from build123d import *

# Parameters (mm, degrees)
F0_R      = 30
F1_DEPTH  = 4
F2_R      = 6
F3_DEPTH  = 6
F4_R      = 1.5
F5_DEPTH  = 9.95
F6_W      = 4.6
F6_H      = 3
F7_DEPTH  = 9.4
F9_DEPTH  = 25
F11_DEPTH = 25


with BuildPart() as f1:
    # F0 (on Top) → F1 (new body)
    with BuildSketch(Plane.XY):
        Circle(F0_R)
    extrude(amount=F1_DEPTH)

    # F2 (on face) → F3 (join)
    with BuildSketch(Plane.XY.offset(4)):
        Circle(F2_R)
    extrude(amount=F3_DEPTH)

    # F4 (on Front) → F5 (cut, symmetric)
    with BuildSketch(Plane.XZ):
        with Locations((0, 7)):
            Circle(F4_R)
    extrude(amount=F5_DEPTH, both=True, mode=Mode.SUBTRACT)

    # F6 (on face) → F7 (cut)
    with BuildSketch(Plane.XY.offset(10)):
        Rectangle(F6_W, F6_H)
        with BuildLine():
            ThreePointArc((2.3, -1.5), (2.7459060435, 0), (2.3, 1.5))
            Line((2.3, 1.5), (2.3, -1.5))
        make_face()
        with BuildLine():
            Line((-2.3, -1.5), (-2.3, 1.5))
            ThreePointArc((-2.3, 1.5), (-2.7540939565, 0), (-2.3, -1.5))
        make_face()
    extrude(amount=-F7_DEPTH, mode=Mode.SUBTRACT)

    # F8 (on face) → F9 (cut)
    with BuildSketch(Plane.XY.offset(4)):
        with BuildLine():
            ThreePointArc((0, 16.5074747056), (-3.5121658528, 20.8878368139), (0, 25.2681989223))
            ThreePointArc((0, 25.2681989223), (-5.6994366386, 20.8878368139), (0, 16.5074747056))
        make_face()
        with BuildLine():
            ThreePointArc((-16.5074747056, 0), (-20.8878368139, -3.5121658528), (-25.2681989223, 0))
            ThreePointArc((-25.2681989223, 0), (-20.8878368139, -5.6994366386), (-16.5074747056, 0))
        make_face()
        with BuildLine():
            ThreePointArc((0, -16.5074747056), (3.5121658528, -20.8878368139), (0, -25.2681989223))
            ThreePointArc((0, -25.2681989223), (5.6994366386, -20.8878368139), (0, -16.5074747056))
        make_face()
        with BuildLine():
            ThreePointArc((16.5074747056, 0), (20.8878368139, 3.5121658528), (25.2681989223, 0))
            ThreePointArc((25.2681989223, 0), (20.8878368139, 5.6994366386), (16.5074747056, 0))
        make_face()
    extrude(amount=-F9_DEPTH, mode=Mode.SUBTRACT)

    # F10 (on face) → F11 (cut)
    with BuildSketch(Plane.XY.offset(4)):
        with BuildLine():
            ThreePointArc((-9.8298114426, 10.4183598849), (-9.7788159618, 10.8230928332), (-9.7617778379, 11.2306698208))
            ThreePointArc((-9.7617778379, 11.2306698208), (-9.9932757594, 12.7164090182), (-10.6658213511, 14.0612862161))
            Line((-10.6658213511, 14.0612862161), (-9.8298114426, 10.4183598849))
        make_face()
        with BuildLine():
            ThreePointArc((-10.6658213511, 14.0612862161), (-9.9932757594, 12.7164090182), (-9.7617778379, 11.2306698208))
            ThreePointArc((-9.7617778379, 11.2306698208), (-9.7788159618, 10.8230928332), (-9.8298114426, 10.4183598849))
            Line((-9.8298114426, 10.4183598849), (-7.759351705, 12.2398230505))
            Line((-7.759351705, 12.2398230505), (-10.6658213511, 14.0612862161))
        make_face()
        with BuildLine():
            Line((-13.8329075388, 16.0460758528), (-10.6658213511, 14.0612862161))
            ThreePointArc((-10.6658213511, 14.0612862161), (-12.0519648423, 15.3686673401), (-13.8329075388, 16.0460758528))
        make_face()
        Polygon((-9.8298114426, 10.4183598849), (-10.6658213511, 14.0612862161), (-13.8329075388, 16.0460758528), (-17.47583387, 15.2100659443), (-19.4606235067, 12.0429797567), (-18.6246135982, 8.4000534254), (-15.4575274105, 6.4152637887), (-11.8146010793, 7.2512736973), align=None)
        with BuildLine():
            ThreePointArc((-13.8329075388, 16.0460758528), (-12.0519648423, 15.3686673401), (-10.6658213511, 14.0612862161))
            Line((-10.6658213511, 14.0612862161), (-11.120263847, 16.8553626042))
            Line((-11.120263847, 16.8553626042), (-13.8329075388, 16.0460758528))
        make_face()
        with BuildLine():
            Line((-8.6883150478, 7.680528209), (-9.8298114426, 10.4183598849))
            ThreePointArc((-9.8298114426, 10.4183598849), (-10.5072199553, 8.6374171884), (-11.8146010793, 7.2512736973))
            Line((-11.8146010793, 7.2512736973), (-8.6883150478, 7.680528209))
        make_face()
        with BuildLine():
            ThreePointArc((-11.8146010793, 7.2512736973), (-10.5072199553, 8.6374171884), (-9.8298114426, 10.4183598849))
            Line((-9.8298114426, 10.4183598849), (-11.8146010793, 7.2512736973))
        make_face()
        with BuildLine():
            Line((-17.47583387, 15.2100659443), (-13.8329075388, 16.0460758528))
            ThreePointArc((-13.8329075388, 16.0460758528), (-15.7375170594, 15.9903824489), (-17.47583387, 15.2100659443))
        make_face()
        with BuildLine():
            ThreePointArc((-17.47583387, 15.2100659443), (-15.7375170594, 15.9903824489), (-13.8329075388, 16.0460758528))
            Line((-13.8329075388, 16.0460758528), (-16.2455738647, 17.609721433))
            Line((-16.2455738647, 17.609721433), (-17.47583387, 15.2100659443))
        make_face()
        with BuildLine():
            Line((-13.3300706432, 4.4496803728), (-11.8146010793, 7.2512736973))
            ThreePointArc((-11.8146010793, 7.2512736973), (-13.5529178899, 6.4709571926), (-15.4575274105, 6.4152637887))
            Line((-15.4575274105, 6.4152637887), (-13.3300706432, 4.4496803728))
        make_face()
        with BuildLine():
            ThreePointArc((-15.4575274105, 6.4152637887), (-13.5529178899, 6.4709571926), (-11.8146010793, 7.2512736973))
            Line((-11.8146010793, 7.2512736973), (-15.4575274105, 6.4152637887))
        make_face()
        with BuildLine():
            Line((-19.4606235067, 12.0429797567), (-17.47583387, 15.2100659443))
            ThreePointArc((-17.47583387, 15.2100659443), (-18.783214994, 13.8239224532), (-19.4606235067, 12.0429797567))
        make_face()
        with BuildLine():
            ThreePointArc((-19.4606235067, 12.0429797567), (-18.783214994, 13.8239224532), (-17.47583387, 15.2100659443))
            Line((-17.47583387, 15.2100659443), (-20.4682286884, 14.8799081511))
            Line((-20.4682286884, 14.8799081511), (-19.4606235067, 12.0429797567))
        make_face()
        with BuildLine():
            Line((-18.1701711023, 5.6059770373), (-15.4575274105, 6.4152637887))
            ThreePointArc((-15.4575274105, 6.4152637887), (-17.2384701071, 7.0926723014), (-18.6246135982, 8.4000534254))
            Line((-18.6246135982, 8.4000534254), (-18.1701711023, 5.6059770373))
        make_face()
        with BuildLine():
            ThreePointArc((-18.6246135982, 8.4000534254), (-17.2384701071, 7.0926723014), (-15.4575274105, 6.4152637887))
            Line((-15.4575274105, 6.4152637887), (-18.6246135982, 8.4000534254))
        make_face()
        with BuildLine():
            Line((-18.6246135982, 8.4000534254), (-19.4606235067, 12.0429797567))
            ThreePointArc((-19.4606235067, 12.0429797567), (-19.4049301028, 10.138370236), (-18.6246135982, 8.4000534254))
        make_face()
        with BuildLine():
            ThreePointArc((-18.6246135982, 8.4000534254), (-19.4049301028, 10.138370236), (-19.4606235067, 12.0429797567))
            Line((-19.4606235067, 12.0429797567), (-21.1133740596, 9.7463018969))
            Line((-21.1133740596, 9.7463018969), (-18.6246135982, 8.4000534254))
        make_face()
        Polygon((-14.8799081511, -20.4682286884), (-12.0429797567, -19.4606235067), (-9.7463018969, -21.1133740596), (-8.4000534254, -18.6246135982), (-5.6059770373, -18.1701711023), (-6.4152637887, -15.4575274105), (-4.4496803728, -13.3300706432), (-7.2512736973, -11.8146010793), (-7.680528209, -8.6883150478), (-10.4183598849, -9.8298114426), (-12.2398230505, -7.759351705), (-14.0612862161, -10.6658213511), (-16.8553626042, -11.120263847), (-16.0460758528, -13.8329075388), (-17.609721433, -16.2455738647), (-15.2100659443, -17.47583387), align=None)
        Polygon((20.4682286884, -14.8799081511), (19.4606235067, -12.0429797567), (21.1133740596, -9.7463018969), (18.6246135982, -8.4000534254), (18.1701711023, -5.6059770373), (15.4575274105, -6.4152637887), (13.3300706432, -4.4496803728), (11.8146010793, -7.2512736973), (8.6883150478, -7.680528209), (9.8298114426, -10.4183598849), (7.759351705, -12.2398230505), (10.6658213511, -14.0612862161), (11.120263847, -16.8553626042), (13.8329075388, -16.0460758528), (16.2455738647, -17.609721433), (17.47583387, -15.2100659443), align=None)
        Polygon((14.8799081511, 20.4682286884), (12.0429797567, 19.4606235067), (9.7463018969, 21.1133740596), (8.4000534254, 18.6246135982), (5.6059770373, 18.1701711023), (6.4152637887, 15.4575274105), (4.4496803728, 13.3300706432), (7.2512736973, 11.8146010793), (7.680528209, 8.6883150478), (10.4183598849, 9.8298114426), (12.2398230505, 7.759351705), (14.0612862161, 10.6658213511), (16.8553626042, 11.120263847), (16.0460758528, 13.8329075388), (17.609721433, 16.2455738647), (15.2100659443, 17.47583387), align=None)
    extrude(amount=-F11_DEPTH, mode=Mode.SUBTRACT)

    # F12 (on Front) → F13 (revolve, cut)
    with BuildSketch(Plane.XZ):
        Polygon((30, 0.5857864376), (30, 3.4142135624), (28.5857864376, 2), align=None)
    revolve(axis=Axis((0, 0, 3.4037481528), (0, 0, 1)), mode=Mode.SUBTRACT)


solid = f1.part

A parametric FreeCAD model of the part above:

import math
import FreeCAD as App
import Part
import Sketcher
from FreeCAD import Vector

doc = App.newDocument("Part")
body = doc.addObject("PartDesign::Body", "Body")

# Sketch on XY plane
sketch1 = body.newObject("Sketcher::SketchObject", "Sketch")
sketch1.AttachmentSupport = (doc.getObject("XY_Plane"), [""])
sketch1.MapMode = "FlatFace"
sketch1.addGeometry(Part.Circle(Vector(0, 0, 0), Vector(0, 0, 1), 30), False)
sketch1.addConstraint(Sketcher.Constraint("Coincident", 0, 3, -1, 1))
sketch1.addConstraint(Sketcher.Constraint("Diameter", 0, 60.0))
pad1 = body.newObject("PartDesign::Pad", "Pad")
pad1.Profile = sketch1
pad1.Length = 4

# Sketch on XY plane
sketch2 = body.newObject("Sketcher::SketchObject", "Sketch001")
sketch2.AttachmentSupport = (doc.getObject("XY_Plane"), [""])
sketch2.MapMode = "FlatFace"
sketch2.AttachmentOffset = App.Placement(Vector(0, 0, 4), App.Rotation())
sketch2.addGeometry(Part.Circle(Vector(0, 0, 0), Vector(0, 0, 1), 6), False)
sketch2.addConstraint(Sketcher.Constraint("Coincident", 0, 3, -1, 1))
sketch2.addConstraint(Sketcher.Constraint("Diameter", 0, 12.0))
pad2 = body.newObject("PartDesign::Pad", "Pad001")
pad2.Profile = sketch2
pad2.Length = 6

# Sketch on XZ plane
sketch3 = body.newObject("Sketcher::SketchObject", "Sketch002")
sketch3.AttachmentSupport = (doc.getObject("XZ_Plane"), [""])
sketch3.MapMode = "FlatFace"
sketch3.addGeometry(Part.Circle(Vector(0, 7, 0), Vector(0, 0, 1), 1.5), False)
sketch3.addConstraint(Sketcher.Constraint("PointOnObject", 0, 3, -2))
sketch3.addConstraint(Sketcher.Constraint("Diameter", 0, 3.0))
sketch3.addConstraint(Sketcher.Constraint("DistanceY", -1, 1, 0, 3, 7.0))
pocket1 = body.newObject("PartDesign::Pocket", "Pocket")
pocket1.Profile = sketch3
pocket1.Length = 19.9
pocket1.Midplane = True

# Sketch on XY plane
sketch4 = body.newObject("Sketcher::SketchObject", "Sketch003")
sketch4.AttachmentSupport = (doc.getObject("XY_Plane"), [""])
sketch4.MapMode = "FlatFace"
sketch4.AttachmentOffset = App.Placement(Vector(0, 0, 10), App.Rotation())
sketch4.addGeometry(Part.LineSegment(Vector(-2.3, -1.5, 0), Vector(2.3, -1.5, 0)), False)
sketch4.addGeometry(Part.ArcOfCircle(Part.Circle(Vector(0, 0, 0), Vector(0, 0, 1), 2.7), math.radians(-33), math.radians(33)), False)
sketch4.addGeometry(Part.LineSegment(Vector(2.3, 1.5, 0), Vector(-2.3, 1.5, 0)), False)
sketch4.addGeometry(Part.ArcOfCircle(Part.Circle(Vector(0, 0, 0), Vector(0, 0, 1), 2.7), math.radians(146), math.radians(214)), False)
sketch4.addConstraint(Sketcher.Constraint("Coincident", 0, 2, 1, 1))
sketch4.addConstraint(Sketcher.Constraint("Coincident", 1, 2, 2, 1))
sketch4.addConstraint(Sketcher.Constraint("Coincident", 2, 2, 3, 1))
sketch4.addConstraint(Sketcher.Constraint("Coincident", 3, 2, 0, 1))
sketch4.addConstraint(Sketcher.Constraint("Horizontal", 0))
sketch4.addConstraint(Sketcher.Constraint("Horizontal", 2))
sketch4.addConstraint(Sketcher.Constraint("Coincident", 1, 3, -1, 1))
sketch4.addConstraint(Sketcher.Constraint("Symmetric", 0, 2, 2, 2, -1, 1))
sketch4.addConstraint(Sketcher.Constraint("PointOnObject", 3, 3, -1))
sketch4.addConstraint(Sketcher.Constraint("DistanceX", 0, 1, 0, 2, 4.6))
sketch4.addConstraint(Sketcher.Constraint("DistanceY", 0, 2, 1, 2, 3.0))
sketch4.addConstraint(Sketcher.Constraint("Radius", 3, 2.704508))
pocket2 = body.newObject("PartDesign::Pocket", "Pocket001")
pocket2.Profile = sketch4
pocket2.Length = 9.4

# Sketch on XY plane
sketch5 = body.newObject("Sketcher::SketchObject", "Sketch004")
sketch5.AttachmentSupport = (doc.getObject("XY_Plane"), [""])
sketch5.MapMode = "FlatFace"
sketch5.AttachmentOffset = App.Placement(Vector(0, 0, 4), App.Rotation())
sketch5.addGeometry(Part.ArcOfCircle(Part.Circle(Vector(1, 20.9, 0), Vector(0, 0, 1), 4.5), math.radians(103), math.radians(257)), False)
sketch5.addGeometry(Part.ArcOfCircle(Part.Circle(Vector(-1.2, 20.9, 0), Vector(0, 0, 1), 4.5), math.radians(75), math.radians(285)), False)
sketch5.addGeometry(Part.ArcOfCircle(Part.Circle(Vector(-20.9, 1, 0), Vector(0, 0, 1), 4.5), math.radians(-167), math.radians(-13)), False)
sketch5.addGeometry(Part.ArcOfCircle(Part.Circle(Vector(-20.9, -1.2, 0), Vector(0, 0, 1), 4.5), math.radians(165), math.radians(375)), False)
sketch5.addGeometry(Part.ArcOfCircle(Part.Circle(Vector(-1, -20.9, 0), Vector(0, 0, 1), 4.5), math.radians(-77), math.radians(77)), False)
sketch5.addGeometry(Part.ArcOfCircle(Part.Circle(Vector(1.2, -20.9, 0), Vector(0, 0, 1), 4.5), math.radians(-105), math.radians(105)), False)
sketch5.addGeometry(Part.ArcOfCircle(Part.Circle(Vector(20.9, -1, 0), Vector(0, 0, 1), 4.5), math.radians(13), math.radians(167)), False)
sketch5.addGeometry(Part.ArcOfCircle(Part.Circle(Vector(20.9, 1.2, 0), Vector(0, 0, 1), 4.5), math.radians(-15), math.radians(195)), False)
sketch5.addConstraint(Sketcher.Constraint("Coincident", 0, 1, 1, 1))
sketch5.addConstraint(Sketcher.Constraint("Coincident", 1, 2, 0, 2))
sketch5.addConstraint(Sketcher.Constraint("Coincident", 2, 1, 3, 1))
sketch5.addConstraint(Sketcher.Constraint("Coincident", 3, 2, 2, 2))
sketch5.addConstraint(Sketcher.Constraint("Coincident", 4, 1, 5, 1))
sketch5.addConstraint(Sketcher.Constraint("Coincident", 5, 2, 4, 2))
sketch5.addConstraint(Sketcher.Constraint("Coincident", 6, 1, 7, 1))
sketch5.addConstraint(Sketcher.Constraint("Coincident", 7, 2, 6, 2))
sketch5.addConstraint(Sketcher.Constraint("Equal", 0, 2))
sketch5.addConstraint(Sketcher.Constraint("Equal", 1, 3))
sketch5.addConstraint(Sketcher.Constraint("Equal", 2, 4))
sketch5.addConstraint(Sketcher.Constraint("Equal", 3, 5))
sketch5.addConstraint(Sketcher.Constraint("Equal", 4, 6))
sketch5.addConstraint(Sketcher.Constraint("Equal", 5, 7))
sketch5.addConstraint(Sketcher.Constraint("Symmetric", 0, 3, 4, 3, -1, 1))
sketch5.addConstraint(Sketcher.Constraint("Symmetric", 1, 3, 5, 3, -1, 1))
sketch5.addConstraint(Sketcher.Constraint("Symmetric", 2, 3, 6, 3, -1, 1))
sketch5.addConstraint(Sketcher.Constraint("Symmetric", 3, 3, 7, 3, -1, 1))
sketch5.addConstraint(Sketcher.Constraint("PointOnObject", 0, 1, -2))
sketch5.addConstraint(Sketcher.Constraint("PointOnObject", 1, 2, -2))
sketch5.addConstraint(Sketcher.Constraint("PointOnObject", 2, 1, -1))
sketch5.addConstraint(Sketcher.Constraint("PointOnObject", 3, 2, -1))
sketch5.addConstraint(Sketcher.Constraint("Radius", 0, 4.48767))
sketch5.addConstraint(Sketcher.Constraint("Radius", 1, 4.533005))
sketch5.addConstraint(Sketcher.Constraint("DistanceY", -1, 1, 0, 1, 25.268199))
sketch5.addConstraint(Sketcher.Constraint("DistanceX", 2, 1, -1, 1, 25.268199))
sketch5.addConstraint(Sketcher.Constraint("DistanceX", 1, 3, -1, 1, 1.166432))
sketch5.addConstraint(Sketcher.Constraint("DistanceY", 3, 3, -1, 1, 1.166432))
pocket3 = body.newObject("PartDesign::Pocket", "Pocket002")
pocket3.Profile = sketch5
pocket3.Length = 25

# Sketch on XY plane
sketch6 = body.newObject("Sketcher::SketchObject", "Sketch005")
sketch6.AttachmentSupport = (doc.getObject("XY_Plane"), [""])
sketch6.MapMode = "FlatFace"
sketch6.AttachmentOffset = App.Placement(Vector(0, 0, 4), App.Rotation())
sketch6.addGeometry(Part.LineSegment(Vector(-9.8, 10.4, 0), Vector(-7.8, 12.2, 0)), False)
sketch6.addGeometry(Part.LineSegment(Vector(-7.8, 12.2, 0), Vector(-10.7, 14.1, 0)), False)
sketch6.addGeometry(Part.LineSegment(Vector(-10.7, 14.1, 0), Vector(-11.1, 16.9, 0)), False)
sketch6.addGeometry(Part.LineSegment(Vector(-11.1, 16.9, 0), Vector(-13.8, 16, 0)), False)
sketch6.addGeometry(Part.LineSegment(Vector(-13.8, 16, 0), Vector(-16.2, 17.6, 0)), False)
sketch6.addGeometry(Part.LineSegment(Vector(-16.2, 17.6, 0), Vector(-17.5, 15.2, 0)), False)
sketch6.addGeometry(Part.LineSegment(Vector(-17.5, 15.2, 0), Vector(-20.5, 14.9, 0)), False)
sketch6.addGeometry(Part.LineSegment(Vector(-20.5, 14.9, 0), Vector(-19.5, 12, 0)), False)
sketch6.addGeometry(Part.LineSegment(Vector(-19.5, 12, 0), Vector(-21.1, 9.7, 0)), False)
sketch6.addGeometry(Part.LineSegment(Vector(-21.1, 9.7, 0), Vector(-18.6, 8.4, 0)), False)
sketch6.addGeometry(Part.LineSegment(Vector(-18.6, 8.4, 0), Vector(-18.2, 5.6, 0)), False)
sketch6.addGeometry(Part.LineSegment(Vector(-18.2, 5.6, 0), Vector(-15.5, 6.4, 0)), False)
sketch6.addGeometry(Part.LineSegment(Vector(-15.5, 6.4, 0), Vector(-13.3, 4.4, 0)), False)
sketch6.addGeometry(Part.LineSegment(Vector(-13.3, 4.4, 0), Vector(-11.8, 7.3, 0)), False)
sketch6.addGeometry(Part.LineSegment(Vector(-11.8, 7.3, 0), Vector(-8.7, 7.7, 0)), False)
sketch6.addGeometry(Part.LineSegment(Vector(-8.7, 7.7, 0), Vector(-9.8, 10.4, 0)), False)
sketch6.addGeometry(Part.LineSegment(Vector(-14.9, -20.5, 0), Vector(-12, -19.5, 0)), False)
sketch6.addGeometry(Part.LineSegment(Vector(-12, -19.5, 0), Vector(-9.7, -21.1, 0)), False)
sketch6.addGeometry(Part.LineSegment(Vector(-9.7, -21.1, 0), Vector(-8.4, -18.6, 0)), False)
sketch6.addGeometry(Part.LineSegment(Vector(-8.4, -18.6, 0), Vector(-5.6, -18.2, 0)), False)
sketch6.addGeometry(Part.LineSegment(Vector(-5.6, -18.2, 0), Vector(-6.4, -15.5, 0)), False)
sketch6.addGeometry(Part.LineSegment(Vector(-6.4, -15.5, 0), Vector(-4.4, -13.3, 0)), False)
sketch6.addGeometry(Part.LineSegment(Vector(-4.4, -13.3, 0), Vector(-7.3, -11.8, 0)), False)
sketch6.addGeometry(Part.LineSegment(Vector(-7.3, -11.8, 0), Vector(-7.7, -8.7, 0)), False)
sketch6.addGeometry(Part.LineSegment(Vector(-7.7, -8.7, 0), Vector(-10.4, -9.8, 0)), False)
sketch6.addGeometry(Part.LineSegment(Vector(-10.4, -9.8, 0), Vector(-12.2, -7.8, 0)), False)
sketch6.addGeometry(Part.LineSegment(Vector(-12.2, -7.8, 0), Vector(-14.1, -10.7, 0)), False)
sketch6.addGeometry(Part.LineSegment(Vector(-14.1, -10.7, 0), Vector(-16.9, -11.1, 0)), False)
sketch6.addGeometry(Part.LineSegment(Vector(-16.9, -11.1, 0), Vector(-16, -13.8, 0)), False)
sketch6.addGeometry(Part.LineSegment(Vector(-16, -13.8, 0), Vector(-17.6, -16.2, 0)), False)
sketch6.addGeometry(Part.LineSegment(Vector(-17.6, -16.2, 0), Vector(-15.2, -17.5, 0)), False)
sketch6.addGeometry(Part.LineSegment(Vector(-15.2, -17.5, 0), Vector(-14.9, -20.5, 0)), False)
sketch6.addGeometry(Part.LineSegment(Vector(20.5, -14.9, 0), Vector(19.5, -12, 0)), False)
sketch6.addGeometry(Part.LineSegment(Vector(19.5, -12, 0), Vector(21.1, -9.7, 0)), False)
sketch6.addGeometry(Part.LineSegment(Vector(21.1, -9.7, 0), Vector(18.6, -8.4, 0)), False)
sketch6.addGeometry(Part.LineSegment(Vector(18.6, -8.4, 0), Vector(18.2, -5.6, 0)), False)
sketch6.addGeometry(Part.LineSegment(Vector(18.2, -5.6, 0), Vector(15.5, -6.4, 0)), False)
sketch6.addGeometry(Part.LineSegment(Vector(15.5, -6.4, 0), Vector(13.3, -4.4, 0)), False)
sketch6.addGeometry(Part.LineSegment(Vector(13.3, -4.4, 0), Vector(11.8, -7.3, 0)), False)
sketch6.addGeometry(Part.LineSegment(Vector(11.8, -7.3, 0), Vector(8.7, -7.7, 0)), False)
sketch6.addGeometry(Part.LineSegment(Vector(8.7, -7.7, 0), Vector(9.8, -10.4, 0)), False)
sketch6.addGeometry(Part.LineSegment(Vector(9.8, -10.4, 0), Vector(7.8, -12.2, 0)), False)
sketch6.addGeometry(Part.LineSegment(Vector(7.8, -12.2, 0), Vector(10.7, -14.1, 0)), False)
sketch6.addGeometry(Part.LineSegment(Vector(10.7, -14.1, 0), Vector(11.1, -16.9, 0)), False)
sketch6.addGeometry(Part.LineSegment(Vector(11.1, -16.9, 0), Vector(13.8, -16, 0)), False)
sketch6.addGeometry(Part.LineSegment(Vector(13.8, -16, 0), Vector(16.2, -17.6, 0)), False)
sketch6.addGeometry(Part.LineSegment(Vector(16.2, -17.6, 0), Vector(17.5, -15.2, 0)), False)
sketch6.addGeometry(Part.LineSegment(Vector(17.5, -15.2, 0), Vector(20.5, -14.9, 0)), False)
sketch6.addGeometry(Part.LineSegment(Vector(14.9, 20.5, 0), Vector(12, 19.5, 0)), False)
sketch6.addGeometry(Part.LineSegment(Vector(12, 19.5, 0), Vector(9.7, 21.1, 0)), False)
sketch6.addGeometry(Part.LineSegment(Vector(9.7, 21.1, 0), Vector(8.4, 18.6, 0)), False)
sketch6.addGeometry(Part.LineSegment(Vector(8.4, 18.6, 0), Vector(5.6, 18.2, 0)), False)
sketch6.addGeometry(Part.LineSegment(Vector(5.6, 18.2, 0), Vector(6.4, 15.5, 0)), False)
sketch6.addGeometry(Part.LineSegment(Vector(6.4, 15.5, 0), Vector(4.4, 13.3, 0)), False)
sketch6.addGeometry(Part.LineSegment(Vector(4.4, 13.3, 0), Vector(7.3, 11.8, 0)), False)
sketch6.addGeometry(Part.LineSegment(Vector(7.3, 11.8, 0), Vector(7.7, 8.7, 0)), False)
sketch6.addGeometry(Part.LineSegment(Vector(7.7, 8.7, 0), Vector(10.4, 9.8, 0)), False)
sketch6.addGeometry(Part.LineSegment(Vector(10.4, 9.8, 0), Vector(12.2, 7.8, 0)), False)
sketch6.addGeometry(Part.LineSegment(Vector(12.2, 7.8, 0), Vector(14.1, 10.7, 0)), False)
sketch6.addGeometry(Part.LineSegment(Vector(14.1, 10.7, 0), Vector(16.9, 11.1, 0)), False)
sketch6.addGeometry(Part.LineSegment(Vector(16.9, 11.1, 0), Vector(16, 13.8, 0)), False)
sketch6.addGeometry(Part.LineSegment(Vector(16, 13.8, 0), Vector(17.6, 16.2, 0)), False)
sketch6.addGeometry(Part.LineSegment(Vector(17.6, 16.2, 0), Vector(15.2, 17.5, 0)), False)
sketch6.addGeometry(Part.LineSegment(Vector(15.2, 17.5, 0), Vector(14.9, 20.5, 0)), False)
sketch6.addConstraint(Sketcher.Constraint("Coincident", 0, 2, 1, 1))
sketch6.addConstraint(Sketcher.Constraint("Coincident", 1, 2, 2, 1))
sketch6.addConstraint(Sketcher.Constraint("Coincident", 2, 2, 3, 1))
sketch6.addConstraint(Sketcher.Constraint("Coincident", 3, 2, 4, 1))
sketch6.addConstraint(Sketcher.Constraint("Coincident", 4, 2, 5, 1))
sketch6.addConstraint(Sketcher.Constraint("Coincident", 5, 2, 6, 1))
sketch6.addConstraint(Sketcher.Constraint("Coincident", 6, 2, 7, 1))
sketch6.addConstraint(Sketcher.Constraint("Coincident", 7, 2, 8, 1))
sketch6.addConstraint(Sketcher.Constraint("Coincident", 8, 2, 9, 1))
sketch6.addConstraint(Sketcher.Constraint("Coincident", 9, 2, 10, 1))
sketch6.addConstraint(Sketcher.Constraint("Coincident", 10, 2, 11, 1))
sketch6.addConstraint(Sketcher.Constraint("Coincident", 11, 2, 12, 1))
sketch6.addConstraint(Sketcher.Constraint("Coincident", 12, 2, 13, 1))
sketch6.addConstraint(Sketcher.Constraint("Coincident", 13, 2, 14, 1))
sketch6.addConstraint(Sketcher.Constraint("Coincident", 14, 2, 15, 1))
sketch6.addConstraint(Sketcher.Constraint("Coincident", 15, 2, 0, 1))
sketch6.addConstraint(Sketcher.Constraint("Coincident", 16, 2, 17, 1))
sketch6.addConstraint(Sketcher.Constraint("Coincident", 17, 2, 18, 1))
sketch6.addConstraint(Sketcher.Constraint("Coincident", 18, 2, 19, 1))
sketch6.addConstraint(Sketcher.Constraint("Coincident", 19, 2, 20, 1))
sketch6.addConstraint(Sketcher.Constraint("Coincident", 20, 2, 21, 1))
sketch6.addConstraint(Sketcher.Constraint("Coincident", 21, 2, 22, 1))
sketch6.addConstraint(Sketcher.Constraint("Coincident", 22, 2, 23, 1))
sketch6.addConstraint(Sketcher.Constraint("Coincident", 23, 2, 24, 1))
sketch6.addConstraint(Sketcher.Constraint("Coincident", 24, 2, 25, 1))
sketch6.addConstraint(Sketcher.Constraint("Coincident", 25, 2, 26, 1))
sketch6.addConstraint(Sketcher.Constraint("Coincident", 26, 2, 27, 1))
sketch6.addConstraint(Sketcher.Constraint("Coincident", 27, 2, 28, 1))
sketch6.addConstraint(Sketcher.Constraint("Coincident", 28, 2, 29, 1))
sketch6.addConstraint(Sketcher.Constraint("Coincident", 29, 2, 30, 1))
sketch6.addConstraint(Sketcher.Constraint("Coincident", 30, 2, 31, 1))
sketch6.addConstraint(Sketcher.Constraint("Coincident", 31, 2, 16, 1))
sketch6.addConstraint(Sketcher.Constraint("Coincident", 32, 2, 33, 1))
sketch6.addConstraint(Sketcher.Constraint("Coincident", 33, 2, 34, 1))
sketch6.addConstraint(Sketcher.Constraint("Coincident", 34, 2, 35, 1))
sketch6.addConstraint(Sketcher.Constraint("Coincident", 35, 2, 36, 1))
sketch6.addConstraint(Sketcher.Constraint("Coincident", 36, 2, 37, 1))
sketch6.addConstraint(Sketcher.Constraint("Coincident", 37, 2, 38, 1))
sketch6.addConstraint(Sketcher.Constraint("Coincident", 38, 2, 39, 1))
sketch6.addConstraint(Sketcher.Constraint("Coincident", 39, 2, 40, 1))
sketch6.addConstraint(Sketcher.Constraint("Coincident", 40, 2, 41, 1))
sketch6.addConstraint(Sketcher.Constraint("Coincident", 41, 2, 42, 1))
sketch6.addConstraint(Sketcher.Constraint("Coincident", 42, 2, 43, 1))
sketch6.addConstraint(Sketcher.Constraint("Coincident", 43, 2, 44, 1))
sketch6.addConstraint(Sketcher.Constraint("Coincident", 44, 2, 45, 1))
sketch6.addConstraint(Sketcher.Constraint("Coincident", 45, 2, 46, 1))
sketch6.addConstraint(Sketcher.Constraint("Coincident", 46, 2, 47, 1))
sketch6.addConstraint(Sketcher.Constraint("Coincident", 47, 2, 32, 1))
sketch6.addConstraint(Sketcher.Constraint("Coincident", 48, 2, 49, 1))
sketch6.addConstraint(Sketcher.Constraint("Coincident", 49, 2, 50, 1))
sketch6.addConstraint(Sketcher.Constraint("Coincident", 50, 2, 51, 1))
sketch6.addConstraint(Sketcher.Constraint("Coincident", 51, 2, 52, 1))
sketch6.addConstraint(Sketcher.Constraint("Coincident", 52, 2, 53, 1))
sketch6.addConstraint(Sketcher.Constraint("Coincident", 53, 2, 54, 1))
sketch6.addConstraint(Sketcher.Constraint("Coincident", 54, 2, 55, 1))
sketch6.addConstraint(Sketcher.Constraint("Coincident", 55, 2, 56, 1))
sketch6.addConstraint(Sketcher.Constraint("Coincident", 56, 2, 57, 1))
sketch6.addConstraint(Sketcher.Constraint("Coincident", 57, 2, 58, 1))
sketch6.addConstraint(Sketcher.Constraint("Coincident", 58, 2, 59, 1))
sketch6.addConstraint(Sketcher.Constraint("Coincident", 59, 2, 60, 1))
sketch6.addConstraint(Sketcher.Constraint("Coincident", 60, 2, 61, 1))
sketch6.addConstraint(Sketcher.Constraint("Coincident", 61, 2, 62, 1))
sketch6.addConstraint(Sketcher.Constraint("Coincident", 62, 2, 63, 1))
sketch6.addConstraint(Sketcher.Constraint("Coincident", 63, 2, 48, 1))
sketch6.addConstraint(Sketcher.Constraint("Symmetric", 7, 2, 32, 2, -1, 1))
sketch6.addConstraint(Sketcher.Constraint("Symmetric", 8, 2, 33, 2, -1, 1))
sketch6.addConstraint(Sketcher.Constraint("Symmetric", 9, 2, 34, 2, -1, 1))
sketch6.addConstraint(Sketcher.Constraint("Symmetric", 10, 2, 35, 2, -1, 1))
sketch6.addConstraint(Sketcher.Constraint("Symmetric", 11, 2, 36, 2, -1, 1))
sketch6.addConstraint(Sketcher.Constraint("Symmetric", 12, 2, 37, 2, -1, 1))
sketch6.addConstraint(Sketcher.Constraint("Symmetric", 13, 2, 38, 2, -1, 1))
sketch6.addConstraint(Sketcher.Constraint("Symmetric", 14, 2, 39, 2, -1, 1))
sketch6.addConstraint(Sketcher.Constraint("Symmetric", 15, 2, 40, 2, -1, 1))
sketch6.addConstraint(Sketcher.Constraint("Symmetric", 0, 2, 41, 2, -1, 1))
sketch6.addConstraint(Sketcher.Constraint("Symmetric", 1, 2, 42, 2, -1, 1))
sketch6.addConstraint(Sketcher.Constraint("Symmetric", 2, 2, 43, 2, -1, 1))
sketch6.addConstraint(Sketcher.Constraint("Symmetric", 3, 2, 44, 2, -1, 1))
sketch6.addConstraint(Sketcher.Constraint("Symmetric", 4, 2, 45, 2, -1, 1))
sketch6.addConstraint(Sketcher.Constraint("Symmetric", 5, 2, 46, 2, -1, 1))
sketch6.addConstraint(Sketcher.Constraint("Symmetric", 6, 2, 47, 2, -1, 1))
sketch6.addConstraint(Sketcher.Constraint("Symmetric", 16, 2, 48, 2, -1, 1))
sketch6.addConstraint(Sketcher.Constraint("Symmetric", 17, 2, 49, 2, -1, 1))
sketch6.addConstraint(Sketcher.Constraint("Symmetric", 18, 2, 50, 2, -1, 1))
sketch6.addConstraint(Sketcher.Constraint("Symmetric", 19, 2, 51, 2, -1, 1))
sketch6.addConstraint(Sketcher.Constraint("Symmetric", 20, 2, 52, 2, -1, 1))
sketch6.addConstraint(Sketcher.Constraint("Symmetric", 21, 2, 53, 2, -1, 1))
sketch6.addConstraint(Sketcher.Constraint("Symmetric", 22, 2, 54, 2, -1, 1))
sketch6.addConstraint(Sketcher.Constraint("Symmetric", 23, 2, 55, 2, -1, 1))
sketch6.addConstraint(Sketcher.Constraint("Symmetric", 24, 2, 56, 2, -1, 1))
sketch6.addConstraint(Sketcher.Constraint("Symmetric", 25, 2, 57, 2, -1, 1))
sketch6.addConstraint(Sketcher.Constraint("Symmetric", 26, 2, 58, 2, -1, 1))
sketch6.addConstraint(Sketcher.Constraint("Symmetric", 27, 2, 59, 2, -1, 1))
sketch6.addConstraint(Sketcher.Constraint("Symmetric", 28, 2, 60, 2, -1, 1))
sketch6.addConstraint(Sketcher.Constraint("Symmetric", 29, 2, 61, 2, -1, 1))
sketch6.addConstraint(Sketcher.Constraint("Symmetric", 30, 2, 62, 2, -1, 1))
sketch6.addConstraint(Sketcher.Constraint("Symmetric", 31, 2, 63, 2, -1, 1))
sketch6.addConstraint(Sketcher.Constraint("Parallel", 2, 10))
sketch6.addConstraint(Sketcher.Constraint("Parallel", 3, 11))
sketch6.addConstraint(Sketcher.Constraint("Perpendicular", 9, 13))
sketch6.addConstraint(Sketcher.Constraint("Perpendicular", 7, 16))
sketch6.addConstraint(Sketcher.Constraint("Perpendicular", 8, 17))
sketch6.addConstraint(Sketcher.Constraint("Parallel", 13, 18))
sketch6.addConstraint(Sketcher.Constraint("Perpendicular", 10, 19))
sketch6.addConstraint(Sketcher.Constraint("Perpendicular", 11, 20))
sketch6.addConstraint(Sketcher.Constraint("Perpendicular", 12, 21))
sketch6.addConstraint(Sketcher.Constraint("Perpendicular", 18, 22))
sketch6.addConstraint(Sketcher.Constraint("Perpendicular", 14, 23))
sketch6.addConstraint(Sketcher.Constraint("Perpendicular", 15, 24))
sketch6.addConstraint(Sketcher.Constraint("Perpendicular", 0, 25))
sketch6.addConstraint(Sketcher.Constraint("Perpendicular", 1, 26))
sketch6.addConstraint(Sketcher.Constraint("Parallel", 19, 27))
sketch6.addConstraint(Sketcher.Constraint("Parallel", 20, 28))
sketch6.addConstraint(Sketcher.Constraint("Perpendicular", 4, 29))
sketch6.addConstraint(Sketcher.Constraint("Perpendicular", 5, 30))
sketch6.addConstraint(Sketcher.Constraint("Perpendicular", 6, 31))
sketch6.addConstraint(Sketcher.Constraint("Equal", 2, 3))
sketch6.addConstraint(Sketcher.Constraint("Equal", 6, 7))
sketch6.addConstraint(Sketcher.Constraint("Equal", 8, 9))
sketch6.addConstraint(Sketcher.Constraint("Equal", 3, 10))
sketch6.addConstraint(Sketcher.Constraint("Equal", 10, 11))
sketch6.addConstraint(Sketcher.Constraint("Equal", 7, 16))
sketch6.addConstraint(Sketcher.Constraint("Equal", 9, 17))
sketch6.addConstraint(Sketcher.Constraint("Equal", 17, 18))
sketch6.addConstraint(Sketcher.Constraint("Equal", 11, 19))
sketch6.addConstraint(Sketcher.Constraint("Equal", 19, 20))
sketch6.addConstraint(Sketcher.Constraint("Equal", 12, 21))
sketch6.addConstraint(Sketcher.Constraint("Equal", 13, 22))
sketch6.addConstraint(Sketcher.Constraint("Equal", 14, 23))
sketch6.addConstraint(Sketcher.Constraint("Equal", 15, 24))
sketch6.addConstraint(Sketcher.Constraint("Equal", 0, 25))
sketch6.addConstraint(Sketcher.Constraint("Equal", 1, 26))
sketch6.addConstraint(Sketcher.Constraint("Equal", 20, 27))
sketch6.addConstraint(Sketcher.Constraint("Equal", 27, 28))
sketch6.addConstraint(Sketcher.Constraint("Equal", 4, 29))
sketch6.addConstraint(Sketcher.Constraint("DistanceY", -1, 1, 8, 2, 9.746302))
sketch6.addConstraint(Sketcher.Constraint("DistanceX", 13, 2, -1, 1, 11.814601))
sketch6.addConstraint(Sketcher.Constraint("DistanceX", 17, 2, -1, 1, 9.746302))
sketch6.addConstraint(Sketcher.Constraint("DistanceY", 22, 2, -1, 1, 11.814601))
sketch6.addConstraint(Sketcher.Constraint("Distance", 0, 2.757632))
sketch6.addConstraint(Sketcher.Constraint("Distance", 2, 2.830792))
sketch6.addConstraint(Sketcher.Constraint("Distance", 12, 2.896479))
sketch6.addConstraint(Sketcher.Constraint("Distance", 13, 3.185212))
sketch6.addConstraint(Sketcher.Constraint("DistanceX", 0, 2, -1, 1, 7.759352))
sketch6.addConstraint(Sketcher.Constraint("DistanceX", 1, 2, -1, 1, 10.665821))
sketch6.addConstraint(Sketcher.Constraint("DistanceY", -1, 1, 4, 2, 17.609721))
sketch6.addConstraint(Sketcher.Constraint("DistanceX", 6, 2, -1, 1, 20.468229))
sketch6.addConstraint(Sketcher.Constraint("DistanceY", -1, 1, 6, 2, 14.879908))
sketch6.addConstraint(Sketcher.Constraint("DistanceY", -1, 1, 7, 2, 12.04298))
sketch6.addConstraint(Sketcher.Constraint("DistanceX", 10, 2, -1, 1, 18.170171))
sketch6.addConstraint(Sketcher.Constraint("DistanceX", 12, 2, -1, 1, 13.330071))
sketch6.addConstraint(Sketcher.Constraint("DistanceY", -1, 1, 12, 2, 4.44968))
sketch6.addConstraint(Sketcher.Constraint("DistanceY", -1, 1, 14, 2, 7.680528))
sketch6.addConstraint(Sketcher.Constraint("DistanceX", 15, 2, -1, 1, 9.829811))
sketch6.addConstraint(Sketcher.Constraint("DistanceY", -1, 1, 15, 2, 10.41836))
sketch6.addConstraint(Sketcher.Constraint("Distance", 1, 3.430057))
sketch6.addConstraint(Sketcher.Constraint("Distance", 4, 2.875056))
sketch6.addConstraint(Sketcher.Constraint("Distance", 5, 2.696643))
sketch6.addConstraint(Sketcher.Constraint("Distance", 6, 3.010553))
sketch6.addConstraint(Sketcher.Constraint("Distance", 8, 2.829543))
sketch6.addConstraint(Sketcher.Constraint("Distance", 14, 3.155618))
pocket4 = body.newObject("PartDesign::Pocket", "Pocket003")
pocket4.Profile = sketch6
pocket4.Length = 25

# Sketch on XZ plane
sketch7 = body.newObject("Sketcher::SketchObject", "Sketch006")
sketch7.AttachmentSupport = (doc.getObject("XZ_Plane"), [""])
sketch7.MapMode = "FlatFace"
sketch7.addGeometry(Part.LineSegment(Vector(30, 0.6, 0), Vector(30, 3.4, 0)), False)
sketch7.addGeometry(Part.LineSegment(Vector(30, 3.4, 0), Vector(28.6, 2, 0)), False)
sketch7.addGeometry(Part.LineSegment(Vector(28.6, 2, 0), Vector(30, 0.6, 0)), False)
sketch7.addConstraint(Sketcher.Constraint("Coincident", 0, 2, 1, 1))
sketch7.addConstraint(Sketcher.Constraint("Coincident", 1, 2, 2, 1))
sketch7.addConstraint(Sketcher.Constraint("Coincident", 2, 2, 0, 1))
sketch7.addConstraint(Sketcher.Constraint("Vertical", 0))
sketch7.addConstraint(Sketcher.Constraint("Perpendicular", 1, 2))
sketch7.addConstraint(Sketcher.Constraint("Equal", 1, 2))
sketch7.addConstraint(Sketcher.Constraint("Distance", 1, 2.0))
sketch7.addConstraint(Sketcher.Constraint("DistanceX", -1, 1, 0, 2, 30.0))
sketch7.addConstraint(Sketcher.Constraint("DistanceY", -1, 1, 1, 2, 2.0))
groove = body.newObject("PartDesign::Groove", "Groove")
groove.Profile = sketch7
groove.ReferenceAxis = (sketch7, ["V_Axis"])
groove.Angle = 360

doc.recompute()
